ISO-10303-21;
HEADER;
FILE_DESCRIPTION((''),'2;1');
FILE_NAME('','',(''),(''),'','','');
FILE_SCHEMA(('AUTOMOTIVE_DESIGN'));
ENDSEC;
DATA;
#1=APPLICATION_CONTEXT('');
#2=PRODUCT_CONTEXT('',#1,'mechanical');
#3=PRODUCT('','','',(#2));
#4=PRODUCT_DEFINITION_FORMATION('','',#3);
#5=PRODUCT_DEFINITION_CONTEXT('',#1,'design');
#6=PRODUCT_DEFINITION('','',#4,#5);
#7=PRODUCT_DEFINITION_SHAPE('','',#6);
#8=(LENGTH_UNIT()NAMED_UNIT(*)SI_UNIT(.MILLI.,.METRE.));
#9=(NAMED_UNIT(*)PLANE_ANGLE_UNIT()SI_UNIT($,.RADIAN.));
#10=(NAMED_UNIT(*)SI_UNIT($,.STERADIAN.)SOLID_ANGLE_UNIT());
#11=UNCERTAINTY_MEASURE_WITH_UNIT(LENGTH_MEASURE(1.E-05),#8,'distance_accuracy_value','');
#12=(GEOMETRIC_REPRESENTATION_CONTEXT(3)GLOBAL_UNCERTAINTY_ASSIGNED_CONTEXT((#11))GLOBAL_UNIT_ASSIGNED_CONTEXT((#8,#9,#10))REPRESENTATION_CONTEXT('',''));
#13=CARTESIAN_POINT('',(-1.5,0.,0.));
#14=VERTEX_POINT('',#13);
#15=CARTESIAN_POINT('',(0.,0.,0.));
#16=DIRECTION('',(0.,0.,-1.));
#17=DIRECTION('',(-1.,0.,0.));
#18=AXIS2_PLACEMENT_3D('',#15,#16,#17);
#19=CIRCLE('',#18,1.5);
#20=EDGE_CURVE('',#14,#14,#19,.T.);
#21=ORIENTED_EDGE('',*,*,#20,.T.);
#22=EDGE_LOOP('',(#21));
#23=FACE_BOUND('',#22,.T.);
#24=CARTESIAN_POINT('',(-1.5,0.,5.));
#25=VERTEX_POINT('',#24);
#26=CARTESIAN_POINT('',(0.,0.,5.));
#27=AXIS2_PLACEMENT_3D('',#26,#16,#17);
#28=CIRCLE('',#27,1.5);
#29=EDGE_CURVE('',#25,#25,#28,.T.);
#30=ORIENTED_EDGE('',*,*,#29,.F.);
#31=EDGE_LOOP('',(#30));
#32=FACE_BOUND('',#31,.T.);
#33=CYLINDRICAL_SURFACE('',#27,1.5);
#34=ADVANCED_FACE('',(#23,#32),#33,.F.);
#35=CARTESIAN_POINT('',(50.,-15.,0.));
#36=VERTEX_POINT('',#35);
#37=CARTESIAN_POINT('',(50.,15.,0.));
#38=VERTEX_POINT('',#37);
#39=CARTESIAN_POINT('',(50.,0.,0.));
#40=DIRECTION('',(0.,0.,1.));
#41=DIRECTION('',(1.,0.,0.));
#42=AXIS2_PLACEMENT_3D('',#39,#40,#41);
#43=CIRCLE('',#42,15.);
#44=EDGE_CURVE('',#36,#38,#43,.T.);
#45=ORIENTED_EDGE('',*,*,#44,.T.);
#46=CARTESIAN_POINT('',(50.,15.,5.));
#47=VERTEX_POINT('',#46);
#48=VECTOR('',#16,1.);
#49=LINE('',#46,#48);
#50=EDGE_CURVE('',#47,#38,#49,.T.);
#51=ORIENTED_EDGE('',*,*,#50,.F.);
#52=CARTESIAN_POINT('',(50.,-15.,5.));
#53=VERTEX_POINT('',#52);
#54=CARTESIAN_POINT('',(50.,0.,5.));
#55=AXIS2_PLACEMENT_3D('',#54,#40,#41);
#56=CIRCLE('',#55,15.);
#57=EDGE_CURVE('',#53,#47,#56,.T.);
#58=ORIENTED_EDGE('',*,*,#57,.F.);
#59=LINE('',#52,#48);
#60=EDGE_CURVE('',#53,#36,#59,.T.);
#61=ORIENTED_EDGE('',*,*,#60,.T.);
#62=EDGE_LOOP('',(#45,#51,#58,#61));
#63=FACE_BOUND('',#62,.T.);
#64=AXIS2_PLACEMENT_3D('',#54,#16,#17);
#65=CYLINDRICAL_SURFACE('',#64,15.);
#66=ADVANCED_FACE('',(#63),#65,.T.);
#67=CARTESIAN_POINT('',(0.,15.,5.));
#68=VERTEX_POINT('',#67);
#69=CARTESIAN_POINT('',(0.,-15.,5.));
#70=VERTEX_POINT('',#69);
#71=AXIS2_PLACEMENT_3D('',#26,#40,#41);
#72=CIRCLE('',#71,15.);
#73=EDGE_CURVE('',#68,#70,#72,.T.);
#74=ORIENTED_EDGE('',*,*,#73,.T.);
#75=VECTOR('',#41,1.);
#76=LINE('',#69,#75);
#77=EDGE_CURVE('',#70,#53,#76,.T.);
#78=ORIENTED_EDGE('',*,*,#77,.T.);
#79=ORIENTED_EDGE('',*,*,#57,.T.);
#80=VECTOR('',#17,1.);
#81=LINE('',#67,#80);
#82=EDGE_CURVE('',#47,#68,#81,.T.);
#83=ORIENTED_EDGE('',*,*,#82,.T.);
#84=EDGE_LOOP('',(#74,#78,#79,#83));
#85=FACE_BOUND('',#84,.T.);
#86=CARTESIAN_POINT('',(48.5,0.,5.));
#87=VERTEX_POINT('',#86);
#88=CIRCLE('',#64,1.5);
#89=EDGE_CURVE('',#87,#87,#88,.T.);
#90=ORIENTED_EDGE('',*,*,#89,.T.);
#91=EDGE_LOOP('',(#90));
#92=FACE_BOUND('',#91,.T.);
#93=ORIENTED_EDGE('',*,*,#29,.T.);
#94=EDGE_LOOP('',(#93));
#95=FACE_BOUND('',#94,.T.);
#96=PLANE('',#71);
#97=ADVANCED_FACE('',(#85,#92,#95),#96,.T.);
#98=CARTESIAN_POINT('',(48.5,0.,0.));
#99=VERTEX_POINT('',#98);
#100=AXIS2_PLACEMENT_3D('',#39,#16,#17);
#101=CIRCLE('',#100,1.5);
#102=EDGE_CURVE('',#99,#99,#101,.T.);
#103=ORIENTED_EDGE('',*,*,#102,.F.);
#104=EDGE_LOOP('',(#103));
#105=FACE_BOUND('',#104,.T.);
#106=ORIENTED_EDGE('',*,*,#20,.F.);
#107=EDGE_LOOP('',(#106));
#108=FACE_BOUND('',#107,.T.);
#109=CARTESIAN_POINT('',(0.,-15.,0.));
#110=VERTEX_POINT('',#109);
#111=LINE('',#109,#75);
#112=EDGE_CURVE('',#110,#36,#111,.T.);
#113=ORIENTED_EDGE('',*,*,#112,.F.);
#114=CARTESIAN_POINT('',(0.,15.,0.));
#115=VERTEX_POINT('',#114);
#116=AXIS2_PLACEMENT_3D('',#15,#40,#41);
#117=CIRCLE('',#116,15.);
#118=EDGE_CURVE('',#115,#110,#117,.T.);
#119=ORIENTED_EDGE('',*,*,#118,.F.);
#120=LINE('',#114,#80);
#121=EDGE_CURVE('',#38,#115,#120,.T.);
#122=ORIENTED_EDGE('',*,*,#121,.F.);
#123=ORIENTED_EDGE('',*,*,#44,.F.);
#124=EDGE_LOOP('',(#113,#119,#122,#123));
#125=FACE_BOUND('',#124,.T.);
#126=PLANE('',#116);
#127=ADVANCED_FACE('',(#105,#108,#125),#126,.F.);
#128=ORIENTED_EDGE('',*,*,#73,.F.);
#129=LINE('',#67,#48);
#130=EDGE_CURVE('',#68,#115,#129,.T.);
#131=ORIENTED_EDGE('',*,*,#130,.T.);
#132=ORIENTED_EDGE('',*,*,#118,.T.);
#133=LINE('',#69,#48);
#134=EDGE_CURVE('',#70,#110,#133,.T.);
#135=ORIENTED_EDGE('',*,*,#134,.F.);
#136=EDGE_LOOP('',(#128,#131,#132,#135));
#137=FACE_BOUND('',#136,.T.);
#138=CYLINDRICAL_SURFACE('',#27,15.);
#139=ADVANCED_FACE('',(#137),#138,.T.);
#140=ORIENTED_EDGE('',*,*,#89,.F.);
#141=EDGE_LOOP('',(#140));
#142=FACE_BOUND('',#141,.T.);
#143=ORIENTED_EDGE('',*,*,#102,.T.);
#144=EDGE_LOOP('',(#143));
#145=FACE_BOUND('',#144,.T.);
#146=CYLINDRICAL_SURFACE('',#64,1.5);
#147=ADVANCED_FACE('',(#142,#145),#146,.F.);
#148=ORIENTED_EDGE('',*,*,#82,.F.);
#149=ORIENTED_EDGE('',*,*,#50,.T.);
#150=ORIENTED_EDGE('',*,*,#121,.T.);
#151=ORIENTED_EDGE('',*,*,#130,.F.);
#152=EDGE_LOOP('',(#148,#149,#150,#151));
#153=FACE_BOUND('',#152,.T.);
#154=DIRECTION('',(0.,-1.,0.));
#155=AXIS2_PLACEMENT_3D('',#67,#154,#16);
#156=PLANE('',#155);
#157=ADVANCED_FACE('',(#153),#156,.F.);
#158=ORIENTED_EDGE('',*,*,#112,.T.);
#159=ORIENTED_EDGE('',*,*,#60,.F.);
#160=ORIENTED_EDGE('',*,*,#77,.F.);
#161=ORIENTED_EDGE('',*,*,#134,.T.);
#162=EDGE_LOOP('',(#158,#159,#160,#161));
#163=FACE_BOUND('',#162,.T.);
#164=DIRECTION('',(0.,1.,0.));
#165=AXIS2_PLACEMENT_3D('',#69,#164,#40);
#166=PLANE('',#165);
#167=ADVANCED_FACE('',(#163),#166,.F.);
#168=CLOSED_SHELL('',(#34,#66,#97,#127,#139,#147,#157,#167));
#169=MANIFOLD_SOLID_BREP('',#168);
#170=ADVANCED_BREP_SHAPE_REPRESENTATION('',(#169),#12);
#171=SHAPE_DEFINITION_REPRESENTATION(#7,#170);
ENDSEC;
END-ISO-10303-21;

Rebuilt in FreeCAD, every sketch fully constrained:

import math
import FreeCAD as App
import Part
import Sketcher
from FreeCAD import Vector
Q = App.Units.Quantity

doc = App.newDocument("Part")
body = doc.addObject("PartDesign::Body", "Body")

# Sketch on XY plane
sketch1 = body.newObject("Sketcher::SketchObject", "Sketch")
sketch1.AttachmentSupport = (doc.getObject("XY_Plane"), [""])
sketch1.MapMode = "FlatFace"
sketch1.addGeometry(Part.LineSegment(Vector(50, 15, 0), Vector(0, 15, 0)), False)
sketch1.addGeometry(Part.ArcOfCircle(Part.Circle(Vector(0, 0, 0), Vector(0, 0, 1), 15), math.radians(90), math.radians(270)), False)
sketch1.addGeometry(Part.LineSegment(Vector(0, -15, 0), Vector(50, -15, 0)), False)
sketch1.addGeometry(Part.ArcOfCircle(Part.Circle(Vector(50, 0, 0), Vector(0, 0, 1), 15), math.radians(-90), math.radians(90)), False)
sketch1.addConstraint(Sketcher.Constraint("Tangent", 0, 2, 1, 1))
sketch1.addConstraint(Sketcher.Constraint("Tangent", 1, 2, 2, 1))
sketch1.addConstraint(Sketcher.Constraint("Tangent", 2, 2, 3, 1))
sketch1.addConstraint(Sketcher.Constraint("Tangent", 3, 2, 0, 1))
sketch1.addConstraint(Sketcher.Constraint("Horizontal", 0))
sketch1.addConstraint(Sketcher.Constraint("Horizontal", 2))
sketch1.addConstraint(Sketcher.Constraint("Coincident", 1, 3, -1, 1))
sketch1.addConstraint(Sketcher.Constraint("Radius", 1, Q("15 mm")))
sketch1.addConstraint(Sketcher.Constraint("DistanceX", 0, 2, 0, 1, Q("50 mm")))
pad1 = body.newObject("PartDesign::Pad", "Pad")
pad1.Profile = sketch1
pad1.Length = 5

# Sketch on XY plane
sketch2 = body.newObject("Sketcher::SketchObject", "Sketch001")
sketch2.AttachmentSupport = (doc.getObject("XY_Plane"), [""])
sketch2.MapMode = "FlatFace"
sketch2.addGeometry(Part.Circle(Vector(50, 0, 0), Vector(0, 0, 1), 1.5), False)
sketch2.addGeometry(Part.Circle(Vector(0, 0, 0), Vector(0, 0, 1), 1.5), False)
sketch2.addConstraint(Sketcher.Constraint("Coincident", 1, 3, -1, 1))
sketch2.addConstraint(Sketcher.Constraint("Equal", 0, 1))
sketch2.addConstraint(Sketcher.Constraint("PointOnObject", 0, 3, -1))
sketch2.addConstraint(Sketcher.Constraint("Diameter", 0, Q("3 mm")))
sketch2.addConstraint(Sketcher.Constraint("DistanceX", -1, 1, 0, 3, Q("50 mm")))
pocket1 = body.newObject("PartDesign::Pocket", "Pocket")
pocket1.Profile = sketch2
pocket1.Length = 5
pocket1.Reversed = True

doc.recompute()
